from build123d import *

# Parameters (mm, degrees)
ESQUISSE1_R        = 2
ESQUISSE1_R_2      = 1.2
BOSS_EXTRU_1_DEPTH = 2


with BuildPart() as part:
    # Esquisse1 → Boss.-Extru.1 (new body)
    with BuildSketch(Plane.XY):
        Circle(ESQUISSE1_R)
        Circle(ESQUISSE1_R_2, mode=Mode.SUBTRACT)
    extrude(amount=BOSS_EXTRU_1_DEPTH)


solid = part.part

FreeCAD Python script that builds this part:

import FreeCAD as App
import Part
import Sketcher

V = App.Vector

doc = App.newDocument("Part")
body = doc.addObject("PartDesign::Body", "Body")

# Sketch on XY plane
sketch1 = body.newObject("Sketcher::SketchObject", "Sketch")
sketch1.AttachmentSupport = (doc.getObject("XY_Plane"), [""])
sketch1.MapMode = "FlatFace"
sketch1.addGeometry(Part.Circle(V(0, 0, 0), V(0, 0, 1), 2), False)
sketch1.addGeometry(Part.Circle(V(0, 0, 0), V(0, 0, 1), 1.2), False)
sketch1.addConstraint(Sketcher.Constraint("Coincident", 0, 3, -1, 1))
sketch1.addConstraint(Sketcher.Constraint("Coincident", 1, 3, -1, 1))
sketch1.addConstraint(Sketcher.Constraint("Diameter", 0, 4.0))
sketch1.addConstraint(Sketcher.Constraint("Diameter", 1, 2.4))
pad1 = body.newObject("PartDesign::Pad", "Pad")
pad1.Profile = sketch1
pad1.Length = 2

doc.recompute()
